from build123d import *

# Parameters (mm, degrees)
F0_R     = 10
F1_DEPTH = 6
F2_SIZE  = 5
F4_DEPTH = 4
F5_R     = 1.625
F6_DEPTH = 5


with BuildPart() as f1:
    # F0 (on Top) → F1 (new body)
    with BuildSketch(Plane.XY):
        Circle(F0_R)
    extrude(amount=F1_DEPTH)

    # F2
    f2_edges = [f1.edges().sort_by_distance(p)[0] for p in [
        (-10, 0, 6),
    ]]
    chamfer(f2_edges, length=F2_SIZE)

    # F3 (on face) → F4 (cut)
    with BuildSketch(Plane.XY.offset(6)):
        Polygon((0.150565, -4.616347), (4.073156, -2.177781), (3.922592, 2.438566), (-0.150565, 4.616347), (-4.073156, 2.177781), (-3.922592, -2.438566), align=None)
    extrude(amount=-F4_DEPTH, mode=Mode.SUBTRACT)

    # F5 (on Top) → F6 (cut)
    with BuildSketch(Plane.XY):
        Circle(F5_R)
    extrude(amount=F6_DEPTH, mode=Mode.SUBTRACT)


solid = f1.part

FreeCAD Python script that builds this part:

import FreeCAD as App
import Part
import Sketcher
from FreeCAD import Vector


def edges_at(feature, points):
    """Names of the edges that pass closest to the given points."""
    edges = feature.Shape.Edges
    near = lambda p: min(range(len(edges)), key=lambda i: edges[i].distToShape(Part.Vertex(*p))[0])
    return sorted({f"Edge{near(p) + 1}" for p in points})


def add_polygon(sketch, points):
    """Adds a closed chain of lines whose ends are joined by coincident constraints."""
    first, n = sketch.GeometryCount, len(points)
    for a, b in zip(points, points[1:] + points[:1]):
        sketch.addGeometry(Part.LineSegment(App.Vector(*a, 0), App.Vector(*b, 0)), False)
    for i in range(n):
        sketch.addConstraint(Sketcher.Constraint("Coincident", first + i, 2, first + (i + 1) % n, 1))

doc = App.newDocument("Part")
body = doc.addObject("PartDesign::Body", "Body")

# Sketch on XY plane
sketch1 = body.newObject("Sketcher::SketchObject", "Sketch")
sketch1.AttachmentSupport = (doc.getObject("XY_Plane"), [""])
sketch1.MapMode = "FlatFace"
sketch1.addGeometry(Part.Circle(Vector(0, 0, 0), Vector(0, 0, 1), 10), False)
sketch1.addConstraint(Sketcher.Constraint("Coincident", 0, 3, -1, 1))
sketch1.addConstraint(Sketcher.Constraint("Diameter", 0, 20.0))
pad1 = body.newObject("PartDesign::Pad", "Pad")
pad1.Profile = sketch1
pad1.Length = 6
doc.recompute()

chamfer = body.newObject("PartDesign::Chamfer", "Chamfer")
chamfer.Base = (pad1, edges_at(pad1, [(-10, 0, 6)]))
chamfer.Size = 5

# Sketch on XY plane
sketch2 = body.newObject("Sketcher::SketchObject", "Sketch001")
sketch2.AttachmentSupport = (doc.getObject("XY_Plane"), [""])
sketch2.MapMode = "FlatFace"
sketch2.AttachmentOffset = App.Placement(Vector(0, 0, 6), App.Rotation())
add_polygon(sketch2, [(0.2, -4.6), (4.1, -2.2), (3.9, 2.4), (-0.2, 4.6), (-4.1, 2.2), (-3.9, -2.4)])  # lines 0-5
sketch2.addConstraint(Sketcher.Constraint("Symmetric", 0, 2, 3, 2, -1, 1))
sketch2.addConstraint(Sketcher.Constraint("Symmetric", 1, 2, 4, 2, -1, 1))
sketch2.addConstraint(Sketcher.Constraint("Symmetric", 2, 2, 5, 2, -1, 1))
sketch2.addConstraint(Sketcher.Constraint("Equal", 0, 1))
sketch2.addConstraint(Sketcher.Constraint("Equal", 1, 2))
sketch2.addConstraint(Sketcher.Constraint("Distance", 0, 4.618801))
sketch2.addConstraint(Sketcher.Constraint("DistanceY", 0, 2, -1, 1, 2.177781))
sketch2.addConstraint(Sketcher.Constraint("DistanceX", -1, 1, 1, 2, 3.922592))
sketch2.addConstraint(Sketcher.Constraint("DistanceY", 1, 2, 2, 2, 2.177781))
pocket1 = body.newObject("PartDesign::Pocket", "Pocket")
pocket1.Profile = sketch2
pocket1.Length = 4

# Sketch on XY plane
sketch3 = body.newObject("Sketcher::SketchObject", "Sketch002")
sketch3.AttachmentSupport = (doc.getObject("XY_Plane"), [""])
sketch3.MapMode = "FlatFace"
sketch3.addGeometry(Part.Circle(Vector(0, 0, 0), Vector(0, 0, 1), 1.6), False)
sketch3.addConstraint(Sketcher.Constraint("Coincident", 0, 3, -1, 1))
sketch3.addConstraint(Sketcher.Constraint("Diameter", 0, 3.25))
pocket2 = body.newObject("PartDesign::Pocket", "Pocket001")
pocket2.Profile = sketch3
pocket2.Length = 5
pocket2.Reversed = True

doc.recompute()
